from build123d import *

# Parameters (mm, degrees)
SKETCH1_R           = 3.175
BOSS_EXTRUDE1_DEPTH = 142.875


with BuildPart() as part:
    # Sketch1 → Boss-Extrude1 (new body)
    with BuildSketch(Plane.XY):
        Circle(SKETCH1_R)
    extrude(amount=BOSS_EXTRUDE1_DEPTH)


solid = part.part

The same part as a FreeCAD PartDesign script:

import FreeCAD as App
import Part
import Sketcher

V = App.Vector
Q = App.Units.Quantity

doc = App.newDocument("Part")
body = doc.addObject("PartDesign::Body", "Body")

# Sketch on XY plane
sketch1 = body.newObject("Sketcher::SketchObject", "Sketch")
sketch1.AttachmentSupport = (doc.getObject("XY_Plane"), [""])
sketch1.MapMode = "FlatFace"
sketch1.addGeometry(Part.Circle(V(0, 0, 0), V(0, 0, 1), 3.2), False)
sketch1.addConstraint(Sketcher.Constraint("Coincident", 0, 3, -1, 1))
sketch1.addConstraint(Sketcher.Constraint("Diameter", 0, Q("0.25 in")))
pad1 = body.newObject("PartDesign::Pad", "Pad")
pad1.Profile = sketch1
pad1.Length = Q("5.625 in")

doc.recompute()
